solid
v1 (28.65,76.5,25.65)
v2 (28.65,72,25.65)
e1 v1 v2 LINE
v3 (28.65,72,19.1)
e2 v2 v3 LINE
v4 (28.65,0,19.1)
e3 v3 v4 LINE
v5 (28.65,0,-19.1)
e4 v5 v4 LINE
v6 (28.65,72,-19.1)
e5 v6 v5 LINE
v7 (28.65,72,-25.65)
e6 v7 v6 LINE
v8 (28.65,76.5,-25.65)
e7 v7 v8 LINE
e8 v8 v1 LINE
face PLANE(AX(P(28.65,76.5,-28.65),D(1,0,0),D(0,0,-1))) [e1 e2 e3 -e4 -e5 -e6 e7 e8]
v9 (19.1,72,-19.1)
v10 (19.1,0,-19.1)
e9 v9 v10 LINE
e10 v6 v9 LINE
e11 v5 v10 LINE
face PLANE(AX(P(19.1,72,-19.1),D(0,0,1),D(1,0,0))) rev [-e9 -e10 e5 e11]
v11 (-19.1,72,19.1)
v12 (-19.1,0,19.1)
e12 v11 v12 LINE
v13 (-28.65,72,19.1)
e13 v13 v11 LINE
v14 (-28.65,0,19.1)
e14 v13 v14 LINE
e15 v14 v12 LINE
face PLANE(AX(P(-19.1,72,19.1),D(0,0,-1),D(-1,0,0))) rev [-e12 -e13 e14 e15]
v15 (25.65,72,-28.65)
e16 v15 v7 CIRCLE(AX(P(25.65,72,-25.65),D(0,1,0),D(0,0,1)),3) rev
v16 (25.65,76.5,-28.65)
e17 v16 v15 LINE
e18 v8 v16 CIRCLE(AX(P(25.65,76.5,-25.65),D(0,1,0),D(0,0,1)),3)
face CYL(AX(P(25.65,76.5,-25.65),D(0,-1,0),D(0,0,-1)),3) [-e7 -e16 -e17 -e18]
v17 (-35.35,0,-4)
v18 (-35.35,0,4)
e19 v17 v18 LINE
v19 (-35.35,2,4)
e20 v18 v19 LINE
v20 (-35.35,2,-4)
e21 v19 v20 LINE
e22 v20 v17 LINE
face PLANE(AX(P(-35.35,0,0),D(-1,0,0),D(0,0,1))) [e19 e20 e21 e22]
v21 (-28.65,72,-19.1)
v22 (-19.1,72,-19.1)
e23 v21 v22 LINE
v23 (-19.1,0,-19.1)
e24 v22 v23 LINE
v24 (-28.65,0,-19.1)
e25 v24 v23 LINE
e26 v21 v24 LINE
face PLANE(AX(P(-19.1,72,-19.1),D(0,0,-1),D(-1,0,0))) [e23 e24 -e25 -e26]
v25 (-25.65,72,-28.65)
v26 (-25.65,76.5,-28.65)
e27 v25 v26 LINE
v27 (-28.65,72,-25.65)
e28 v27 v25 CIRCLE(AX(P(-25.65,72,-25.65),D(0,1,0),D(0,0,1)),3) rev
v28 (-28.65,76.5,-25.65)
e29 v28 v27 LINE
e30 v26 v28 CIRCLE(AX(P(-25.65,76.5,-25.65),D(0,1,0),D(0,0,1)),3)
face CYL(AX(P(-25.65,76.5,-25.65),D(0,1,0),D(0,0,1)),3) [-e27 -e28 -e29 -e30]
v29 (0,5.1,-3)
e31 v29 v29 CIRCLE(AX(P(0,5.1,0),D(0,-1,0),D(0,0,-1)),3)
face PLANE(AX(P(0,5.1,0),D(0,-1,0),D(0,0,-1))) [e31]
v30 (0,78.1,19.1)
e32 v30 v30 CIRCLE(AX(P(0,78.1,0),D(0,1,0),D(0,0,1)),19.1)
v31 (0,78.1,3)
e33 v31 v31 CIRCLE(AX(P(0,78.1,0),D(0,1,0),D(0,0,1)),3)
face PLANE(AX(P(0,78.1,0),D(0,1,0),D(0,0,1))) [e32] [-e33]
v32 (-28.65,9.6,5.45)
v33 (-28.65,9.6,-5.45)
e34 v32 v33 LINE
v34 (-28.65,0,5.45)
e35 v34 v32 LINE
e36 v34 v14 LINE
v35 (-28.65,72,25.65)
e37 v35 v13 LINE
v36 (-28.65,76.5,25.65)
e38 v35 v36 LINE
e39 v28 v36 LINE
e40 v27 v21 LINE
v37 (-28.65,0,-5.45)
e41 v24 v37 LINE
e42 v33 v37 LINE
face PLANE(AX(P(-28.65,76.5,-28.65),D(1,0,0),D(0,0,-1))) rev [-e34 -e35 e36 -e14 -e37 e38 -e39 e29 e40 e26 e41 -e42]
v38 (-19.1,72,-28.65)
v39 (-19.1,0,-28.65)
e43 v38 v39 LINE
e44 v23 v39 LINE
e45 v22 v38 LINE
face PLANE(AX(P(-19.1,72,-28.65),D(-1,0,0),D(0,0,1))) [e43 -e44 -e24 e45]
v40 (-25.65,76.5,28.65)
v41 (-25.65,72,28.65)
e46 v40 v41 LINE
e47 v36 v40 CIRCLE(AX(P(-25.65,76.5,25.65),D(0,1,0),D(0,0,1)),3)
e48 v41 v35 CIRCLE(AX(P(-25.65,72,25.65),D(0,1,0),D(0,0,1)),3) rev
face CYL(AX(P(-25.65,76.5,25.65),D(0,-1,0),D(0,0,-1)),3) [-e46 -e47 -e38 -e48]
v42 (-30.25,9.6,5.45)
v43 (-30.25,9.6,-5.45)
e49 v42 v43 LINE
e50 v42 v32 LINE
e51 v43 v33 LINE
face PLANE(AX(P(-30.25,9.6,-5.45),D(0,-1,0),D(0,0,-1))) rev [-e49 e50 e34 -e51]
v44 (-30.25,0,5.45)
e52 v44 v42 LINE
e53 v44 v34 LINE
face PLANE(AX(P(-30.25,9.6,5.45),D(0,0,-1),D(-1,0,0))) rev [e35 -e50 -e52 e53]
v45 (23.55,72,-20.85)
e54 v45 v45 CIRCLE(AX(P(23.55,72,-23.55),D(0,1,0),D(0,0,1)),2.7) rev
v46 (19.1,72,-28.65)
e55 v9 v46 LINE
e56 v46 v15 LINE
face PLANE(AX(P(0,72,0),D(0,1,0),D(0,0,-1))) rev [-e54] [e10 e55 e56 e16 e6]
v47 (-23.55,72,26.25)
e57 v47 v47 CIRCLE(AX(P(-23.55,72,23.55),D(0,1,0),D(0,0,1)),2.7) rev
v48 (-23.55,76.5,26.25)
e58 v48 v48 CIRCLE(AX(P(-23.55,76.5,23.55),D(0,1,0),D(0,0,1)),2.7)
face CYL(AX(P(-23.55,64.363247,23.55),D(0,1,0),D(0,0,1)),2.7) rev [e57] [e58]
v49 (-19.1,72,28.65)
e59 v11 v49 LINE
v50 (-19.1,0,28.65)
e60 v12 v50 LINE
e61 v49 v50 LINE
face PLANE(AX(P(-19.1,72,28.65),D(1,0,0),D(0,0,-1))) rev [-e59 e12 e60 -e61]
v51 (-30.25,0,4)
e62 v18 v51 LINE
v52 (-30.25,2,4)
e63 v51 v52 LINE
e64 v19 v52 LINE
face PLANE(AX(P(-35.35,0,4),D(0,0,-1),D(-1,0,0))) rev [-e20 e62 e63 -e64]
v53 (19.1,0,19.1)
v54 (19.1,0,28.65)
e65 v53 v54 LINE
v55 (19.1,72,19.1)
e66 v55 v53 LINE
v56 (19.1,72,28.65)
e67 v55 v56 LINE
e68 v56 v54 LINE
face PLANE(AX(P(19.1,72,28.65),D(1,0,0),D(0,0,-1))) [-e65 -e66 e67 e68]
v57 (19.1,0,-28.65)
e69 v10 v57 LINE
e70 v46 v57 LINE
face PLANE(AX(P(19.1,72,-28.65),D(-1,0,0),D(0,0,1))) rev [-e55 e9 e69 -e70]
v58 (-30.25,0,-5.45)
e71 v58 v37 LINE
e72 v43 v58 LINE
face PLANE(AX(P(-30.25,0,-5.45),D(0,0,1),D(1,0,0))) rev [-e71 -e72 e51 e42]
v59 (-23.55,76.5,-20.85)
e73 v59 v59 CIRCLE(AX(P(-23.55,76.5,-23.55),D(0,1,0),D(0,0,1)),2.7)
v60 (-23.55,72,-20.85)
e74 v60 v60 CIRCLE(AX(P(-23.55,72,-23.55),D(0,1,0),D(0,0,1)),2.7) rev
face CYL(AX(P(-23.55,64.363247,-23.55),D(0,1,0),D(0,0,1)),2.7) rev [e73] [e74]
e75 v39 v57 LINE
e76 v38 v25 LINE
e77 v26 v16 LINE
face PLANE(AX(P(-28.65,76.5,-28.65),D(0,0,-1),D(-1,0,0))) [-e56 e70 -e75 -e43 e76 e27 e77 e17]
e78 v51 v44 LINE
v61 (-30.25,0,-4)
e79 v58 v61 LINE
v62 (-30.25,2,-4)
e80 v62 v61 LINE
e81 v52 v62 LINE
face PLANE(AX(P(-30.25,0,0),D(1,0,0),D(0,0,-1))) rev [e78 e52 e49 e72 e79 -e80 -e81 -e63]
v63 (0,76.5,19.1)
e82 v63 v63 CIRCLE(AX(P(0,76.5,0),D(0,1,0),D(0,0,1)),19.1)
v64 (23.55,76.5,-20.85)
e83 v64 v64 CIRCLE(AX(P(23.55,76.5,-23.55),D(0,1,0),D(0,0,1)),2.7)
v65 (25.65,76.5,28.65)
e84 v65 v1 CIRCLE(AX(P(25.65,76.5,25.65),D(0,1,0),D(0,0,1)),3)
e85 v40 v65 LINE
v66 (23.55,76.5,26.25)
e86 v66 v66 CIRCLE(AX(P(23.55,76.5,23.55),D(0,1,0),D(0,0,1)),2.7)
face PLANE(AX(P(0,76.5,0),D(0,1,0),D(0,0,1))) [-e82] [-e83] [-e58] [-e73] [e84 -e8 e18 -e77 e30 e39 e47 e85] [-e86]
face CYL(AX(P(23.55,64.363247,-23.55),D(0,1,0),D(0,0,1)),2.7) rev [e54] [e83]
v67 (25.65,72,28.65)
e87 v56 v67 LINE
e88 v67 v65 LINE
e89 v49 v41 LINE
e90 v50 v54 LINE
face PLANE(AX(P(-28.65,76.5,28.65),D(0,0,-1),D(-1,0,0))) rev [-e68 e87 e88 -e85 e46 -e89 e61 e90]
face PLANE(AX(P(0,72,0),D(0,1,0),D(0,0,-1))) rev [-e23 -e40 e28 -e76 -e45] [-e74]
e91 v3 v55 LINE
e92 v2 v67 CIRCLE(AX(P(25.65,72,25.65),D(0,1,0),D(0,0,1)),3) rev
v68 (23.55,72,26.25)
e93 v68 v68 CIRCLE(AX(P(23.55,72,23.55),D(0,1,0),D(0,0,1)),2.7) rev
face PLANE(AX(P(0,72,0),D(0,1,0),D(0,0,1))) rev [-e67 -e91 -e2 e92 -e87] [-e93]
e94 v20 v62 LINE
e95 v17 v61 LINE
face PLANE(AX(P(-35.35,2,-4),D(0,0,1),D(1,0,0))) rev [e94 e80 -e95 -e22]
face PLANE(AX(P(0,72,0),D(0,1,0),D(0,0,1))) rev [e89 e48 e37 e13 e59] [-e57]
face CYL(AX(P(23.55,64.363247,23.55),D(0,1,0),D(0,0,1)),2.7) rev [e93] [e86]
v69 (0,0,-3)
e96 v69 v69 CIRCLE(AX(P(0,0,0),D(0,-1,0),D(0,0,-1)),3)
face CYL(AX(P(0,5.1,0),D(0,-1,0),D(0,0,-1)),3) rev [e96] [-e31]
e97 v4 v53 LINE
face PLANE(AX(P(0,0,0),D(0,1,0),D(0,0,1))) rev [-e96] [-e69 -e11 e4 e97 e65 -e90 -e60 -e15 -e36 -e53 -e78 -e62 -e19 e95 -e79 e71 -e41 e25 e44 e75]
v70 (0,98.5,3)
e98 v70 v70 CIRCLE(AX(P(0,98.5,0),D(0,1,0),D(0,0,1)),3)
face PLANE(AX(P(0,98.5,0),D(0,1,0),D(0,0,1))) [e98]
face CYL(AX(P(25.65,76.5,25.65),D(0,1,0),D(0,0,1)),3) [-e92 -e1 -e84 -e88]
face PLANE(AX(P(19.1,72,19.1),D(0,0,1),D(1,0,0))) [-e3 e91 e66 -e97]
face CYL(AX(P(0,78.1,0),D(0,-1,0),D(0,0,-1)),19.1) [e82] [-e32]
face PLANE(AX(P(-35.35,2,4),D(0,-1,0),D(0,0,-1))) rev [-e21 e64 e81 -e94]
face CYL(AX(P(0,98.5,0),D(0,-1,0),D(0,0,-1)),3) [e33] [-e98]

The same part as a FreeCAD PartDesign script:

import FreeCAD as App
import Part
import Sketcher


def edges_at(feature, points):
    """Names of the edges that pass closest to the given points."""
    edges = feature.Shape.Edges
    near = lambda p: min(range(len(edges)), key=lambda i: edges[i].distToShape(Part.Vertex(*p))[0])
    return sorted({f"Edge{near(p) + 1}" for p in points})


def add_polygon(sketch, points):
    """Adds a closed chain of lines whose ends are joined by coincident constraints."""
    first, n = sketch.GeometryCount, len(points)
    for a, b in zip(points, points[1:] + points[:1]):
        sketch.addGeometry(Part.LineSegment(App.Vector(*a, 0), App.Vector(*b, 0)), False)
    for i in range(n):
        sketch.addConstraint(Sketcher.Constraint("Coincident", first + i, 2, first + (i + 1) % n, 1))

doc = App.newDocument("Part")
body = doc.addObject("PartDesign::Body", "Body")

# Sketch on XZ plane
sketch1 = body.newObject("Sketcher::SketchObject", "Sketch")
sketch1.AttachmentSupport = (doc.getObject("XZ_Plane"), [""])
sketch1.MapMode = "FlatFace"
add_polygon(sketch1, [(-29, -29), (-29, 29), (29, 29), (29, -29)])  # lines 0-3
sketch1.addConstraint([
    Sketcher.Constraint("Vertical", 0),
    Sketcher.Constraint("Horizontal", 1),
    Sketcher.Constraint("Vertical", 2),
    Sketcher.Constraint("Horizontal", 3),
    Sketcher.Constraint("Symmetric", 0, 2, 2, 2, -1, 1),
    Sketcher.Constraint("Equal", 3, 0),
    Sketcher.Constraint("DistanceX", 1, 1, 1, 2, 57.3),
])
pad1 = body.newObject("PartDesign::Pad", "Pad")
pad1.Profile = sketch1
pad1.Length = 76.5
pad1.Reversed = True

# Sketch on XZ plane
sketch2 = body.newObject("Sketcher::SketchObject", "Sketch001")
sketch2.AttachmentSupport = (doc.getObject("XZ_Plane"), [""])
sketch2.MapMode = "FlatFace"
add_polygon(sketch2, [(-29, 29), (-29, 19), (-19, 19), (-19, 29)])  # lines 0-3
sketch2.addConstraint([
    Sketcher.Constraint("Vertical", 0),
    Sketcher.Constraint("Horizontal", 1),
    Sketcher.Constraint("Vertical", 2),
    Sketcher.Constraint("Horizontal", 3),
    Sketcher.Constraint("Equal", 3, 0),
    Sketcher.Constraint("DistanceX", 1, 1, 1, 2, 9.55),
    Sketcher.Constraint("DistanceY", -1, 1, 0, 2, 19.1),
    Sketcher.Constraint("DistanceX", 1, 2, -1, 1, 19.1),
])
pocket1 = body.newObject("PartDesign::Pocket", "Pocket")
pocket1.Profile = sketch2
pocket1.Length = 72
doc.recompute()

mirrored = body.newObject("PartDesign::Mirrored", "Mirrored")
mirrored.Originals = [pocket1]
mirrored.MirrorPlane = (doc.getObject("YZ_Plane"), [""])
body.Tip = mirrored
doc.recompute()

mirrored2 = body.newObject("PartDesign::Mirrored", "Mirrored001")
mirrored2.Originals = [pocket1]
mirrored2.MirrorPlane = (doc.getObject("XY_Plane"), [""])
body.Tip = mirrored2

# Sketch on XZ plane
sketch3 = body.newObject("Sketcher::SketchObject", "Sketch002")
sketch3.AttachmentSupport = (doc.getObject("XZ_Plane"), [""])
sketch3.MapMode = "FlatFace"
add_polygon(sketch3, [(29, -29), (29, -19), (19, -19), (19, -29)])  # lines 0-3
sketch3.addConstraint([
    Sketcher.Constraint("Vertical", 0),
    Sketcher.Constraint("Horizontal", 1),
    Sketcher.Constraint("Vertical", 2),
    Sketcher.Constraint("Horizontal", 3),
    Sketcher.Constraint("Equal", 3, 0),
    Sketcher.Constraint("DistanceX", 1, 2, 1, 1, 9.55),
    Sketcher.Constraint("DistanceY", 0, 2, -1, 1, 19.1),
    Sketcher.Constraint("DistanceX", -1, 1, 1, 2, 19.1),
])
pocket2 = body.newObject("PartDesign::Pocket", "Pocket001")
pocket2.Profile = sketch3
pocket2.Length = 72

# Sketch on XZ plane
sketch4 = body.newObject("Sketcher::SketchObject", "Sketch003")
sketch4.AttachmentSupport = (doc.getObject("XZ_Plane"), [""])
sketch4.MapMode = "FlatFace"
sketch4.AttachmentOffset = App.Placement(App.Vector(0, 0, -76.5), App.Rotation())
sketch4.addGeometry(Part.Circle(App.Vector(0, 0, 0), App.Vector(0, 0, 1), 19), False)
sketch4.addConstraint([
    Sketcher.Constraint("Coincident", 0, 3, -1, 1),
    Sketcher.Constraint("Diameter", 0, 38.2),
])
pad2 = body.newObject("PartDesign::Pad", "Pad001")
pad2.Profile = sketch4
pad2.Length = 1.6
pad2.Reversed = True

# Sketch on XZ plane
sketch5 = body.newObject("Sketcher::SketchObject", "Sketch004")
sketch5.AttachmentSupport = (doc.getObject("XZ_Plane"), [""])
sketch5.MapMode = "FlatFace"
sketch5.AttachmentOffset = App.Placement(App.Vector(0, 0, -78.1), App.Rotation())
sketch5.addGeometry(Part.Circle(App.Vector(0, 0, 0), App.Vector(0, 0, 1), 3), False)
sketch5.addConstraint([
    Sketcher.Constraint("Coincident", 0, 3, -1, 1),
    Sketcher.Constraint("Diameter", 0, 6.0),
])
pad3 = body.newObject("PartDesign::Pad", "Pad002")
pad3.Profile = sketch5
pad3.Length = 20.4
pad3.Reversed = True

# Sketch on XZ plane
sketch6 = body.newObject("Sketcher::SketchObject", "Sketch005")
sketch6.AttachmentSupport = (doc.getObject("XZ_Plane"), [""])
sketch6.MapMode = "FlatFace"
sketch6.AttachmentOffset = App.Placement(App.Vector(0, 0, -76.5), App.Rotation())
sketch6.addGeometry([
    Part.Circle(App.Vector(-23.6, -23.6, 0), App.Vector(0, 0, 1), 2.7),
    Part.Circle(App.Vector(23.6, -23.6, 0), App.Vector(0, 0, 1), 2.7),
    Part.Circle(App.Vector(23.6, 23.6, 0), App.Vector(0, 0, 1), 2.7),
    Part.Circle(App.Vector(-23.6, 23.6, 0), App.Vector(0, 0, 1), 2.7),
], False)
sketch6.addConstraint([
    Sketcher.Constraint("Equal", 0, 1),
    Sketcher.Constraint("Equal", 1, 2),
    Sketcher.Constraint("Equal", 2, 3),
    Sketcher.Constraint("Symmetric", 0, 3, 2, 3, -1, 1),
    Sketcher.Constraint("Symmetric", 1, 3, 3, 3, -1, 1),
    Sketcher.Constraint("Symmetric", 0, 3, 1, 3, -2),
    Sketcher.Constraint("Diameter", 0, 5.4),
    Sketcher.Constraint("DistanceX", 0, 3, 1, 3, 47.1),
    Sketcher.Constraint("DistanceY", 1, 3, 2, 3, 47.1),
])
pocket3 = body.newObject("PartDesign::Pocket", "Pocket002")
pocket3.Profile = sketch6
pocket3.Length = 4.5
pocket3.Reversed = True
doc.recompute()

fillet = body.newObject("PartDesign::Fillet", "Fillet")
fillet.Base = (pocket3, edges_at(pocket3, [
    (-28.65, 74.25, -28.65),
    (28.65, 74.25, -28.65),
    (28.65, 74.25, 28.65),
    (-28.65, 74.25, 28.65),
]))
fillet.Radius = 3

# Sketch on YZ plane
sketch7 = body.newObject("Sketcher::SketchObject", "Sketch006")
sketch7.AttachmentSupport = (doc.getObject("YZ_Plane"), [""])
sketch7.MapMode = "FlatFace"
sketch7.AttachmentOffset = App.Placement(App.Vector(0, 0, -28.65), App.Rotation())
add_polygon(sketch7, [(0, 5), (10, 5), (10, -5), (0, -5)])  # lines 0-3
sketch7.addConstraint([
    Sketcher.Constraint("Horizontal", 0),
    Sketcher.Constraint("Vertical", 1),
    Sketcher.Constraint("Horizontal", 2),
    Sketcher.Constraint("Vertical", 3),
    Sketcher.Constraint("Symmetric", 2, 2, 3, 2, -1, 1),
    Sketcher.Constraint("DistanceX", 0, 1, 0, 2, 9.6),
    Sketcher.Constraint("DistanceY", 1, 2, 1, 1, 10.9),
])
pad4 = body.newObject("PartDesign::Pad", "Pad003")
pad4.Profile = sketch7
pad4.Length = 1.6
pad4.Reversed = True

# Sketch on YZ plane
sketch8 = body.newObject("Sketcher::SketchObject", "Sketch007")
sketch8.AttachmentSupport = (doc.getObject("YZ_Plane"), [""])
sketch8.MapMode = "FlatFace"
sketch8.AttachmentOffset = App.Placement(App.Vector(0, 0, -30.25), App.Rotation())
add_polygon(sketch8, [(0, -4), (0, 4), (2, 4), (2, -4)])  # lines 0-3
sketch8.addConstraint([
    Sketcher.Constraint("Vertical", 0),
    Sketcher.Constraint("Horizontal", 1),
    Sketcher.Constraint("Vertical", 2),
    Sketcher.Constraint("Horizontal", 3),
    Sketcher.Constraint("Symmetric", 0, 2, 3, 2, -1, 1),
    Sketcher.Constraint("DistanceX", 1, 1, 1, 2, 2.0),
    Sketcher.Constraint("DistanceY", 0, 1, 0, 2, 8.0),
])
pad5 = body.newObject("PartDesign::Pad", "Pad004")
pad5.Profile = sketch8
pad5.Length = 5.1
pad5.Reversed = True

# Sketch on XZ plane
sketch9 = body.newObject("Sketcher::SketchObject", "Sketch008")
sketch9.AttachmentSupport = (doc.getObject("XZ_Plane"), [""])
sketch9.MapMode = "FlatFace"
sketch9.addGeometry(Part.Circle(App.Vector(0, 0, 0), App.Vector(0, 0, 1), 3), False)
sketch9.addConstraint([
    Sketcher.Constraint("Coincident", 0, 3, -1, 1),
    Sketcher.Constraint("Diameter", 0, 6.0),
])
pocket4 = body.newObject("PartDesign::Pocket", "Pocket003")
pocket4.Profile = sketch9
pocket4.Length = 5.1

doc.recompute()
